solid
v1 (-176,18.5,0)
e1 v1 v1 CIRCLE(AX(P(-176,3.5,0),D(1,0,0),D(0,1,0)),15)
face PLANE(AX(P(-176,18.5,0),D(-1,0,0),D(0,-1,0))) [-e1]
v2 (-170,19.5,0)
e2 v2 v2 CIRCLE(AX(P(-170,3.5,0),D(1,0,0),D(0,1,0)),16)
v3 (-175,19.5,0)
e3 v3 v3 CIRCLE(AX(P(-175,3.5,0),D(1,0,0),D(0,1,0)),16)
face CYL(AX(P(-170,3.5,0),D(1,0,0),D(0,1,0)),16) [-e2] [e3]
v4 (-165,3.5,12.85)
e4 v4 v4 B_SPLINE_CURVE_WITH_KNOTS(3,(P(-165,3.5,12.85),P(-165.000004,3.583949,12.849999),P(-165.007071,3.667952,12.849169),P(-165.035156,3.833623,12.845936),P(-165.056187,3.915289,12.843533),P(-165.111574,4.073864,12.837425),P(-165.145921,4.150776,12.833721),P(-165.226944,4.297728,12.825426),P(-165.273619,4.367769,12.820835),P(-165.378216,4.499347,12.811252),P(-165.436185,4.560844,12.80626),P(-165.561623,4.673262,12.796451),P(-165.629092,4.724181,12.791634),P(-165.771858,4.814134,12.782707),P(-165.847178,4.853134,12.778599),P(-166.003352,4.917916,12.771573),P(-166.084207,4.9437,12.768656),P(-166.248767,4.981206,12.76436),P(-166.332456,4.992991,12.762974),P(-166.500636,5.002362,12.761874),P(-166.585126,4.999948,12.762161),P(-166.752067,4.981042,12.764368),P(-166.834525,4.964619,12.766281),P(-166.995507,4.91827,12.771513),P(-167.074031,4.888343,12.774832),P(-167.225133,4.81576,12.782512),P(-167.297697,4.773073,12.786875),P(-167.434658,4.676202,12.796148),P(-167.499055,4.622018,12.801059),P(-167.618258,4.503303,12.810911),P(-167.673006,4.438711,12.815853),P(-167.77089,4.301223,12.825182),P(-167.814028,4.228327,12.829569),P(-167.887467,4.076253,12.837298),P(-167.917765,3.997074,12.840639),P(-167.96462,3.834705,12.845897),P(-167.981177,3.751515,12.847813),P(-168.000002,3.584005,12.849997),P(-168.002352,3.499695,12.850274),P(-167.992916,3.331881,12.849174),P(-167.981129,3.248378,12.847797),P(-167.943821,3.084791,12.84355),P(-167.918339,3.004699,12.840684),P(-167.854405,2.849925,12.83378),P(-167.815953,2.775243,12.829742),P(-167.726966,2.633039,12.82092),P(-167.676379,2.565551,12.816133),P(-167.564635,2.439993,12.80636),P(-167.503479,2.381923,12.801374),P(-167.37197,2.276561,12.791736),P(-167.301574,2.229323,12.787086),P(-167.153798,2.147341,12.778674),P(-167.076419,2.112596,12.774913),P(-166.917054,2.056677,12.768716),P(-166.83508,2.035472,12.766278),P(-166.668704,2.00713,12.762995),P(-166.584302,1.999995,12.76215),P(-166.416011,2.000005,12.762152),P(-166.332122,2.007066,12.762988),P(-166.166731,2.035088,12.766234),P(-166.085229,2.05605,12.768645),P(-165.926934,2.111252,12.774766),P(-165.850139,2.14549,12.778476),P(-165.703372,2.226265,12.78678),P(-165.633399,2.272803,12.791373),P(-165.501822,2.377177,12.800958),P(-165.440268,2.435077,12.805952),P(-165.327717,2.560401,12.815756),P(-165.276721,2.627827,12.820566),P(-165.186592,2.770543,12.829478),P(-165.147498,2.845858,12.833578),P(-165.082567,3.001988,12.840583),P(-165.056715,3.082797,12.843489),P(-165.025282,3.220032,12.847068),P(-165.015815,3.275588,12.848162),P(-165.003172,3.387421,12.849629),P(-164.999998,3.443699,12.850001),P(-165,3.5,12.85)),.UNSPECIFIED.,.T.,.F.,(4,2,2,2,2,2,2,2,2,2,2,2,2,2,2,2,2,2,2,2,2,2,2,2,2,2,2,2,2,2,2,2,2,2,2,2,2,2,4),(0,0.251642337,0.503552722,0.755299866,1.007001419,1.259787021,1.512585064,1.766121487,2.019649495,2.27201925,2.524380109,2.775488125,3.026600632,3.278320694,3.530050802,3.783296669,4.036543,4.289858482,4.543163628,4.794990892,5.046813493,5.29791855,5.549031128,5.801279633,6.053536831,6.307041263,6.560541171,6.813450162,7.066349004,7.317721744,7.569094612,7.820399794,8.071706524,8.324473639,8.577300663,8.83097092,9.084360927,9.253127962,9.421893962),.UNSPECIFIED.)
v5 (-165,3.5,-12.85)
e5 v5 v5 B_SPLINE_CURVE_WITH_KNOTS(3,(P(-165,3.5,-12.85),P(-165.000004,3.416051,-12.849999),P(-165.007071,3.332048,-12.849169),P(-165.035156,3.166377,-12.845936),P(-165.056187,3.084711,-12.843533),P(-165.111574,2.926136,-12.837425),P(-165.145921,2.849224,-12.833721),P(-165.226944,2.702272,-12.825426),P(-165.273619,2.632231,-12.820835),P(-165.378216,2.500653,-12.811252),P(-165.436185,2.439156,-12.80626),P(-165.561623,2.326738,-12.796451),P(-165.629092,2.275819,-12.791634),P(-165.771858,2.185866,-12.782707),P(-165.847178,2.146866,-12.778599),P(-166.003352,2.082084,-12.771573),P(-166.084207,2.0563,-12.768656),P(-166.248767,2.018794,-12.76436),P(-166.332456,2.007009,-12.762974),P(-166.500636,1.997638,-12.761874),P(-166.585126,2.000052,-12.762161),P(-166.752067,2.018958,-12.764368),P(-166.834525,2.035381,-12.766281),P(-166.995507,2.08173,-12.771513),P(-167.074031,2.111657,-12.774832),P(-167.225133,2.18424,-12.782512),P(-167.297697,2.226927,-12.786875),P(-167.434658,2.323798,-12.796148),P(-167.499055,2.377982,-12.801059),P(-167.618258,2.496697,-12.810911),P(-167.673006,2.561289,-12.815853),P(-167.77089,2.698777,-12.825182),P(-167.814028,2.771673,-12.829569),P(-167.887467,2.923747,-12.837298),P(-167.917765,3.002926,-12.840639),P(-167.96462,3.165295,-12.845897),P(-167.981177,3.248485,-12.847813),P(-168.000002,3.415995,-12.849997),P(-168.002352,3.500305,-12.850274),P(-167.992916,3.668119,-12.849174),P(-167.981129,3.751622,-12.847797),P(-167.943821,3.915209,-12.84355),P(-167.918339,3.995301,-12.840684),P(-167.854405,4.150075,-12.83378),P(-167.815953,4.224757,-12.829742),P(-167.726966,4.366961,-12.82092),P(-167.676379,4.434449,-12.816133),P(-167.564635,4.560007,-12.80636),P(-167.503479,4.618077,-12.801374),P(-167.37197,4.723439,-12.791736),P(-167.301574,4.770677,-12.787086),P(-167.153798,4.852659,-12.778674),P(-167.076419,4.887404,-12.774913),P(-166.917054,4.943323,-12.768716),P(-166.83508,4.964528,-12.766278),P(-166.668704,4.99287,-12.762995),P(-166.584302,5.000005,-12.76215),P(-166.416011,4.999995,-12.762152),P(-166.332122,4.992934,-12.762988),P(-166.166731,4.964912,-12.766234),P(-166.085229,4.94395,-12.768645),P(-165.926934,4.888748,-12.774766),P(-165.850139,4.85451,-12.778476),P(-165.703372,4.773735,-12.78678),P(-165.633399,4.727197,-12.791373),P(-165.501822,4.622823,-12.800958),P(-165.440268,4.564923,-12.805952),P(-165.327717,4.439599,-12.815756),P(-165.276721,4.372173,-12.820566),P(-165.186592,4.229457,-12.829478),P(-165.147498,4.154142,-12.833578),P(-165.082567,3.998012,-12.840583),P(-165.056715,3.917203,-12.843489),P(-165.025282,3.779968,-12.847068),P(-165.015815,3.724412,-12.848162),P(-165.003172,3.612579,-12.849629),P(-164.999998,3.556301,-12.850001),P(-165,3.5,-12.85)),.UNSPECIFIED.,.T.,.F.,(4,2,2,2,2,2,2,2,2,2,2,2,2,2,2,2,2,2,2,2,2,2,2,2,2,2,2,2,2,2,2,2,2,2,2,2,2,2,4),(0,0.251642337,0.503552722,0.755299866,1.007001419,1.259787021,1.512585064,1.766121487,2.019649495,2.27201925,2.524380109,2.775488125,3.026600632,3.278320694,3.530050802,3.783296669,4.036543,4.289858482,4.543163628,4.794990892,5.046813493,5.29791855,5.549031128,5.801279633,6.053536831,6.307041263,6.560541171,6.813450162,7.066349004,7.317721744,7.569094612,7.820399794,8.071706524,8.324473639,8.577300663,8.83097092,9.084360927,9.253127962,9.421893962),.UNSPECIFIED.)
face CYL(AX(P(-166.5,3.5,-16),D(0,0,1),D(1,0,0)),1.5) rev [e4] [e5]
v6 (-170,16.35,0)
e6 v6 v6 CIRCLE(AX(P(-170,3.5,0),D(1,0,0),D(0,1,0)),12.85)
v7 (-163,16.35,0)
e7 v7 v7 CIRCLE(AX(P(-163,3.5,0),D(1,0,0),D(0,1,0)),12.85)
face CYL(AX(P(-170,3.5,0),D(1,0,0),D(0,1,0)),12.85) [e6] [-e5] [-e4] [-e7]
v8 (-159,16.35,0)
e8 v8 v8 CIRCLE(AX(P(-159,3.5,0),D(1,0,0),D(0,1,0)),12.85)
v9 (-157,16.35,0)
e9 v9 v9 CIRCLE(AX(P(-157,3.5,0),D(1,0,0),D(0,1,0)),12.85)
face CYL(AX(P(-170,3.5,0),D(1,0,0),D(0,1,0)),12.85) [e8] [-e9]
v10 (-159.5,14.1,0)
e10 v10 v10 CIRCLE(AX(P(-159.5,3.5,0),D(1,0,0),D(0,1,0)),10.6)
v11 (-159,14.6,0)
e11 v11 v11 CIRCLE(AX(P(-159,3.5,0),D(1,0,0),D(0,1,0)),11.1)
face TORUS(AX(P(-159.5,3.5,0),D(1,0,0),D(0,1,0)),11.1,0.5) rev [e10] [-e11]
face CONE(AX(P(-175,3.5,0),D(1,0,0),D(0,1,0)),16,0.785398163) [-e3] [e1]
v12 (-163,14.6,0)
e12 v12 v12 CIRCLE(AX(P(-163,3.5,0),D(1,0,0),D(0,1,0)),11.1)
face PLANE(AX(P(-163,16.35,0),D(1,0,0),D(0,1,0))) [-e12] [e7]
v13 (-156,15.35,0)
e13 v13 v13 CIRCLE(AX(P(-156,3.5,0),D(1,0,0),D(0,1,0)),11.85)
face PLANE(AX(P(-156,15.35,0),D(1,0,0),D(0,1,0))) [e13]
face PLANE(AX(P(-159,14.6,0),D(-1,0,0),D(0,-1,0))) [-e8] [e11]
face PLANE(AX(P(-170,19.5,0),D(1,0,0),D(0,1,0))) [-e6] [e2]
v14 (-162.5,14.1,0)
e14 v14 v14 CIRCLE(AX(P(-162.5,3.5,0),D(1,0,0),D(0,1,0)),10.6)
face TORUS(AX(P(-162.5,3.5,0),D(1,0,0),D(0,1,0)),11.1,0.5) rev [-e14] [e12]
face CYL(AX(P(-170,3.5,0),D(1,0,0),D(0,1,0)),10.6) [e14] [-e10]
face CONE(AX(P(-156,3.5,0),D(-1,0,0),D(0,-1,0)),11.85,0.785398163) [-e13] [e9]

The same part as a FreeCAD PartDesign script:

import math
import FreeCAD as App
import Part
import Sketcher
Q = App.Units.Quantity

doc = App.newDocument("Part")
params = doc.addObject("Spreadsheet::Sheet", "Params")
for row, (alias, value) in enumerate([
    ("sketch1_radius", "0.5 mm"),
    ("sketch1_width", "5 mm"),
    ("sketch1_width2", "20 mm"),
    ("sketch1_width3", "2 mm"),
    ("sketch1_width4", "3 mm"),
    ("revolution_angle", "360 deg"),
    ("sketch2_diameter", "3 mm"),
], start=1):
    params.set(f"A{row}", alias)
    params.set(f"B{row}", "=" + value)
    params.setAlias(f"B{row}", alias)

body = doc.addObject("PartDesign::Body", "Body")

sketch1 = doc.addObject("Sketcher::SketchObject", "Sketch")
body.addObject(sketch1)
sketch1.AttachmentSupport = (doc.XY_Plane, [""])
sketch1.MapMode = "FlatFace"
sketch1.addGeometry(Part.LineSegment(App.Vector(-170, 19.5, 0), App.Vector(-175, 19.5, 0)), False)
sketch1.addGeometry(Part.LineSegment(App.Vector(-175, 19.5, 0), App.Vector(-176, 18.5, 0)), False)
sketch1.addGeometry(Part.LineSegment(App.Vector(-176, 18.5, 0), App.Vector(-176, 3.5, 0)), False)
sketch1.addGeometry(Part.LineSegment(App.Vector(-176, 3.5, 0), App.Vector(-156, 3.5, 0)), False)
sketch1.addGeometry(Part.LineSegment(App.Vector(-156, 3.5, 0), App.Vector(-156, 15.35, 0)), False)
sketch1.addGeometry(Part.LineSegment(App.Vector(-156, 15.35, 0), App.Vector(-157, 16.35, 0)), False)
sketch1.addGeometry(Part.LineSegment(App.Vector(-157, 16.35, 0), App.Vector(-159, 16.35, 0)), False)
sketch1.addGeometry(Part.LineSegment(App.Vector(-159, 16.35, 0), App.Vector(-159, 14.6, 0)), False)
sketch1.addGeometry(Part.ArcOfCircle(Part.Circle(App.Vector(-159.5, 14.6, 0), App.Vector(0, 0, 1), 0.5), math.radians(-90), math.radians(0)), False)
sketch1.addGeometry(Part.LineSegment(App.Vector(-159.5, 14.1, 0), App.Vector(-162.5, 14.1, 0)), False)
sketch1.addGeometry(Part.ArcOfCircle(Part.Circle(App.Vector(-162.5, 14.6, 0), App.Vector(0, 0, 1), 0.5), math.radians(180), math.radians(270)), False)
sketch1.addGeometry(Part.LineSegment(App.Vector(-163, 14.6, 0), App.Vector(-163, 16.35, 0)), False)
sketch1.addGeometry(Part.LineSegment(App.Vector(-163, 16.35, 0), App.Vector(-170, 16.35, 0)), False)
sketch1.addGeometry(Part.LineSegment(App.Vector(-170, 16.35, 0), App.Vector(-170, 19.5, 0)), False)
sketch1.addGeometry(Part.LineSegment(App.Vector(-156, 3.5, 0), App.Vector(-176, 3.5, 0)), True)
sketch1.addConstraint(Sketcher.Constraint("Coincident", 0, 2, 1, 1))
sketch1.addConstraint(Sketcher.Constraint("Coincident", 1, 2, 2, 1))
sketch1.addConstraint(Sketcher.Constraint("Coincident", 2, 2, 3, 1))
sketch1.addConstraint(Sketcher.Constraint("Coincident", 3, 2, 4, 1))
sketch1.addConstraint(Sketcher.Constraint("Coincident", 4, 2, 5, 1))
sketch1.addConstraint(Sketcher.Constraint("Coincident", 5, 2, 6, 1))
sketch1.addConstraint(Sketcher.Constraint("Coincident", 6, 2, 7, 1))
sketch1.addConstraint(Sketcher.Constraint("Tangent", 7, 2, 8, 2))
sketch1.addConstraint(Sketcher.Constraint("Tangent", 8, 1, 9, 1))
sketch1.addConstraint(Sketcher.Constraint("Tangent", 9, 2, 10, 2))
sketch1.addConstraint(Sketcher.Constraint("Tangent", 10, 1, 11, 1))
sketch1.addConstraint(Sketcher.Constraint("Coincident", 11, 2, 12, 1))
sketch1.addConstraint(Sketcher.Constraint("Coincident", 12, 2, 13, 1))
sketch1.addConstraint(Sketcher.Constraint("Coincident", 13, 2, 0, 1))
sketch1.addConstraint(Sketcher.Constraint("Horizontal", 0))
sketch1.addConstraint(Sketcher.Constraint("Vertical", 2))
sketch1.addConstraint(Sketcher.Constraint("Horizontal", 3))
sketch1.addConstraint(Sketcher.Constraint("Vertical", 4))
sketch1.addConstraint(Sketcher.Constraint("Horizontal", 6))
sketch1.addConstraint(Sketcher.Constraint("Vertical", 7))
sketch1.addConstraint(Sketcher.Constraint("Horizontal", 9))
sketch1.addConstraint(Sketcher.Constraint("Vertical", 11))
sketch1.addConstraint(Sketcher.Constraint("Horizontal", 12))
sketch1.addConstraint(Sketcher.Constraint("Vertical", 13))
sketch1.addConstraint(Sketcher.Constraint("Horizontal", 14))
sketch1.addConstraint(Sketcher.Constraint("Coincident", 14, 1, 3, 2))
sketch1.addConstraint(Sketcher.Constraint("Equal", 8, 10))
sketch1.addConstraint(Sketcher.Constraint("Perpendicular", 1, 5))
sketch1.addConstraint(Sketcher.Constraint("Horizontal", 6, 2, 11, 2))
sketch1.addConstraint(Sketcher.Constraint("Vertical", 1, 2, 14, 2))
sketch1.addConstraint(Sketcher.Constraint("Equal", 1, 5))
sketch1.addConstraint(Sketcher.Constraint("Radius", 8, 0.5))
sketch1.addConstraint(Sketcher.Constraint("DistanceX", 0, 2, 0, 1, 5.0))
sketch1.addConstraint(Sketcher.Constraint("DistanceX", 3, 1, 3, 2, 20.0))
sketch1.addConstraint(Sketcher.Constraint("DistanceX", 6, 2, 6, 1, 2.0))
sketch1.addConstraint(Sketcher.Constraint("DistanceX", 9, 2, 9, 1, 3.0))
sketch1.addConstraint(Sketcher.Constraint("DistanceX", 12, 2, 12, 1, 7.0))
sketch1.addConstraint(Sketcher.Constraint("DistanceY", 2, 2, 2, 1, 15.0))
sketch1.addConstraint(Sketcher.Constraint("Angle", 1, Q("-135 deg")))
sketch1.addConstraint(Sketcher.Constraint("DistanceX", 0, 2, -1, 1, 175.0))
sketch1.addConstraint(Sketcher.Constraint("DistanceY", 4, 1, 4, 2, 11.85))
sketch1.addConstraint(Sketcher.Constraint("DistanceY", 7, 2, 7, 1, 1.75))
sketch1.addConstraint(Sketcher.Constraint("DistanceY", -1, 1, 8, 3, 14.6))
sketch1.setExpression("Constraints[31]", "Params.sketch1_radius")
sketch1.setExpression("Constraints[32]", "Params.sketch1_width")
sketch1.setExpression("Constraints[33]", "Params.sketch1_width2")
sketch1.setExpression("Constraints[34]", "Params.sketch1_width3")
sketch1.setExpression("Constraints[35]", "Params.sketch1_width4")
revolution = doc.addObject("PartDesign::Revolution", "Revolution")
body.addObject(revolution)
revolution.Profile = sketch1
revolution.ReferenceAxis = (sketch1, ["Axis0"])
revolution.setExpression("Angle", "Params.revolution_angle")

sketch2 = doc.addObject("Sketcher::SketchObject", "Sketch001")
body.addObject(sketch2)
sketch2.AttachmentSupport = (doc.XY_Plane, [""])
sketch2.MapMode = "FlatFace"
sketch2.addGeometry(Part.Circle(App.Vector(-166.5, 3.5, 0), App.Vector(0, 0, 1), 1.5), False)
sketch2.addConstraint(Sketcher.Constraint("Diameter", 0, 3.0))
sketch2.addConstraint(Sketcher.Constraint("DistanceX", 0, 3, -1, 1, 166.5))
sketch2.addConstraint(Sketcher.Constraint("DistanceY", -1, 1, 0, 3, 3.5))
sketch2.setExpression("Constraints[0]", "Params.sketch2_diameter")
pocket1 = doc.addObject("PartDesign::Pocket", "Pocket")
body.addObject(pocket1)
pocket1.Profile = sketch2
pocket1.Type = "ThroughAll"
pocket1.Midplane = True

doc.recompute()
